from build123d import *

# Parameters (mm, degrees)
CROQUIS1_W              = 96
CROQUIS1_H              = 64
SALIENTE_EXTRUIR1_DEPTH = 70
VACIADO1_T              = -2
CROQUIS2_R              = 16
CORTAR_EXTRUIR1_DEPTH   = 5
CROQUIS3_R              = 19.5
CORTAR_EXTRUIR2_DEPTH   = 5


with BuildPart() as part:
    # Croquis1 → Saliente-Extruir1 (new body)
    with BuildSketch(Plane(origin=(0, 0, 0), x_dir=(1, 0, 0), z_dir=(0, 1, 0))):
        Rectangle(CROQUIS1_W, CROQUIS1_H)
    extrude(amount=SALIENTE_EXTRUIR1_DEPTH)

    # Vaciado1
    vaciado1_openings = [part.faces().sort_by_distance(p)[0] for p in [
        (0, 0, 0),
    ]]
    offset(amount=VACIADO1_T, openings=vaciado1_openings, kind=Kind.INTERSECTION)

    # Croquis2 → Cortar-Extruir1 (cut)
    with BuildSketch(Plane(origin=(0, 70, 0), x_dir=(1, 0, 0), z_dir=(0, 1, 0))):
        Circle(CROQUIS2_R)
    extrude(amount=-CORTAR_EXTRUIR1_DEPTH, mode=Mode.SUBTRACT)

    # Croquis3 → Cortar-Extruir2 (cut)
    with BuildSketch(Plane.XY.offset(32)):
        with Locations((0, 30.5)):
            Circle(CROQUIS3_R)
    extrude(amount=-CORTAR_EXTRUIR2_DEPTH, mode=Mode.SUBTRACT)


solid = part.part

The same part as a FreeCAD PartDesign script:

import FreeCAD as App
import Part
import Sketcher

V = App.Vector
Q = App.Units.Quantity


def faces_at(feature, points):
    """Names of the faces that lie closest to the given points."""
    faces = feature.Shape.Faces
    near = lambda p: min(range(len(faces)), key=lambda i: faces[i].distToShape(Part.Vertex(*p))[0])
    return sorted({f"Face{near(p) + 1}" for p in points})


def add_polygon(sketch, points):
    """Adds a closed chain of lines whose ends are joined by coincident constraints."""
    first, n = sketch.GeometryCount, len(points)
    for a, b in zip(points, points[1:] + points[:1]):
        sketch.addGeometry(Part.LineSegment(App.Vector(*a, 0), App.Vector(*b, 0)), False)
    for i in range(n):
        sketch.addConstraint(Sketcher.Constraint("Coincident", first + i, 2, first + (i + 1) % n, 1))

doc = App.newDocument("Part")
params = doc.addObject("Spreadsheet::Sheet", "Params")
for row, (alias, value) in enumerate([
    ("sketch1_width", "96 mm"),
    ("sketch1_height", "64 mm"),
    ("pad1_length", "70 mm"),
    ("thickness_wall", "2 mm"),
    ("sketch2_diameter", "32 mm"),
    ("pocket1_length", "5 mm"),
    ("sketch3_diameter", "39 mm"),
    ("pocket2_length", "5 mm"),
], start=1):
    params.set(f"A{row}", alias)
    params.set(f"B{row}", "=" + value)
    params.setAlias(f"B{row}", alias)

body = doc.addObject("PartDesign::Body", "Body")

# Sketch on XZ plane
sketch1 = body.newObject("Sketcher::SketchObject", "Sketch")
sketch1.AttachmentSupport = (doc.getObject("XZ_Plane"), [""])
sketch1.MapMode = "FlatFace"
add_polygon(sketch1, [(-48, -32), (-48, 32), (48, 32), (48, -32)])  # lines 0-3
sketch1.addConstraint(Sketcher.Constraint("Vertical", 0))
sketch1.addConstraint(Sketcher.Constraint("Horizontal", 1))
sketch1.addConstraint(Sketcher.Constraint("Vertical", 2))
sketch1.addConstraint(Sketcher.Constraint("Horizontal", 3))
sketch1.addConstraint(Sketcher.Constraint("Symmetric", 0, 2, 2, 2, -1, 1))
sketch1.addConstraint(Sketcher.Constraint("DistanceX", 1, 1, 1, 2, Q("96 mm")))
sketch1.addConstraint(Sketcher.Constraint("DistanceY", 0, 1, 0, 2, Q("64 mm")))
sketch1.setExpression("Constraints[9]", "Params.sketch1_width")
sketch1.setExpression("Constraints[10]", "Params.sketch1_height")
pad1 = body.newObject("PartDesign::Pad", "Pad")
pad1.Profile = sketch1
pad1.setExpression("Length", "Params.pad1_length")
pad1.Reversed = True
doc.recompute()

thickness = body.newObject("PartDesign::Thickness", "Thickness")
thickness.Base = (pad1, faces_at(pad1, [(0, 0, 0)]))
thickness.setExpression("Value", "Params.thickness_wall")
thickness.Reversed = True
thickness.Join = "Intersection"

# Sketch on XZ plane
sketch2 = body.newObject("Sketcher::SketchObject", "Sketch001")
sketch2.AttachmentSupport = (doc.getObject("XZ_Plane"), [""])
sketch2.MapMode = "FlatFace"
sketch2.AttachmentOffset = App.Placement(V(0, 0, -70), App.Rotation())
sketch2.addGeometry(Part.Circle(V(0, 0, 0), V(0, 0, 1), 16), False)
sketch2.addConstraint(Sketcher.Constraint("Coincident", 0, 3, -1, 1))
sketch2.addConstraint(Sketcher.Constraint("Diameter", 0, Q("32 mm")))
sketch2.setExpression("Constraints[1]", "Params.sketch2_diameter")
pocket1 = body.newObject("PartDesign::Pocket", "Pocket")
pocket1.Profile = sketch2
pocket1.setExpression("Length", "Params.pocket1_length")
pocket1.Reversed = True

# Sketch on XY plane
sketch3 = body.newObject("Sketcher::SketchObject", "Sketch002")
sketch3.AttachmentSupport = (doc.getObject("XY_Plane"), [""])
sketch3.MapMode = "FlatFace"
sketch3.AttachmentOffset = App.Placement(V(0, 0, 32), App.Rotation())
sketch3.addGeometry(Part.Circle(V(0, 30.5, 0), V(0, 0, 1), 19.5), False)
sketch3.addConstraint(Sketcher.Constraint("PointOnObject", 0, 3, -2))
sketch3.addConstraint(Sketcher.Constraint("Diameter", 0, Q("39 mm")))
sketch3.addConstraint(Sketcher.Constraint("DistanceY", -1, 1, 0, 3, Q("30.5 mm")))
sketch3.setExpression("Constraints[1]", "Params.sketch3_diameter")
pocket2 = body.newObject("PartDesign::Pocket", "Pocket001")
pocket2.Profile = sketch3
pocket2.setExpression("Length", "Params.pocket2_length")

doc.recompute()
